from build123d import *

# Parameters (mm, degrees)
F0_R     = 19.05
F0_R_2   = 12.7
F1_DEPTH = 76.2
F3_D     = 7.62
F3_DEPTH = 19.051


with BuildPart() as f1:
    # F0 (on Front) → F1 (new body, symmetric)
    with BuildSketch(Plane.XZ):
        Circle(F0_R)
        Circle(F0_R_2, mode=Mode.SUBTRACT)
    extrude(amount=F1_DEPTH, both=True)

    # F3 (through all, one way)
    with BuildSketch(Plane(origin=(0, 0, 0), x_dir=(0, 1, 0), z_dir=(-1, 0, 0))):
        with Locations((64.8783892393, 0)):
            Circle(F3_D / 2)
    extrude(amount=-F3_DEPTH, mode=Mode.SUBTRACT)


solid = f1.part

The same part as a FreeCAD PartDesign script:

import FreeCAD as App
import Part
import Sketcher
from FreeCAD import Vector
Q = App.Units.Quantity

doc = App.newDocument("Part")
body = doc.addObject("PartDesign::Body", "Body")

sketch1 = doc.addObject("Sketcher::SketchObject", "Sketch")
body.addObject(sketch1)
sketch1.AttachmentSupport = (doc.XZ_Plane, [""])
sketch1.MapMode = "FlatFace"
sketch1.addGeometry(Part.Circle(Vector(0, 0, 0), Vector(0, 0, 1), 19), False)
sketch1.addGeometry(Part.Circle(Vector(0, 0, 0), Vector(0, 0, 1), 13), False)
sketch1.addConstraint(Sketcher.Constraint("Coincident", 0, 3, -1, 1))
sketch1.addConstraint(Sketcher.Constraint("Coincident", 1, 3, -1, 1))
sketch1.addConstraint(Sketcher.Constraint("Diameter", 1, Q("1 in")))
sketch1.addConstraint(Sketcher.Constraint("Diameter", 0, Q("1.5 in")))
pad1 = doc.addObject("PartDesign::Pad", "Pad")
body.addObject(pad1)
pad1.Profile = sketch1
pad1.Length = Q("6 in")
pad1.Midplane = True

sketch2 = doc.addObject("Sketcher::SketchObject", "Sketch001")
body.addObject(sketch2)
sketch2.AttachmentSupport = (doc.YZ_Plane, [""])
sketch2.MapMode = "FlatFace"
sketch2.addGeometry(Part.Circle(Vector(64.9, 0, 0), Vector(0, 0, 1), 3.8), False)
sketch2.addConstraint(Sketcher.Constraint("PointOnObject", 0, 3, -1))
sketch2.addConstraint(Sketcher.Constraint("Diameter", 0, Q("0.3 in")))
sketch2.addConstraint(Sketcher.Constraint("DistanceX", -1, 1, 0, 3, 64.878389))
pocket1 = doc.addObject("PartDesign::Pocket", "Pocket")
body.addObject(pocket1)
pocket1.Profile = sketch2
pocket1.Type = "ThroughAll"
pocket1.Reversed = True

doc.recompute()
